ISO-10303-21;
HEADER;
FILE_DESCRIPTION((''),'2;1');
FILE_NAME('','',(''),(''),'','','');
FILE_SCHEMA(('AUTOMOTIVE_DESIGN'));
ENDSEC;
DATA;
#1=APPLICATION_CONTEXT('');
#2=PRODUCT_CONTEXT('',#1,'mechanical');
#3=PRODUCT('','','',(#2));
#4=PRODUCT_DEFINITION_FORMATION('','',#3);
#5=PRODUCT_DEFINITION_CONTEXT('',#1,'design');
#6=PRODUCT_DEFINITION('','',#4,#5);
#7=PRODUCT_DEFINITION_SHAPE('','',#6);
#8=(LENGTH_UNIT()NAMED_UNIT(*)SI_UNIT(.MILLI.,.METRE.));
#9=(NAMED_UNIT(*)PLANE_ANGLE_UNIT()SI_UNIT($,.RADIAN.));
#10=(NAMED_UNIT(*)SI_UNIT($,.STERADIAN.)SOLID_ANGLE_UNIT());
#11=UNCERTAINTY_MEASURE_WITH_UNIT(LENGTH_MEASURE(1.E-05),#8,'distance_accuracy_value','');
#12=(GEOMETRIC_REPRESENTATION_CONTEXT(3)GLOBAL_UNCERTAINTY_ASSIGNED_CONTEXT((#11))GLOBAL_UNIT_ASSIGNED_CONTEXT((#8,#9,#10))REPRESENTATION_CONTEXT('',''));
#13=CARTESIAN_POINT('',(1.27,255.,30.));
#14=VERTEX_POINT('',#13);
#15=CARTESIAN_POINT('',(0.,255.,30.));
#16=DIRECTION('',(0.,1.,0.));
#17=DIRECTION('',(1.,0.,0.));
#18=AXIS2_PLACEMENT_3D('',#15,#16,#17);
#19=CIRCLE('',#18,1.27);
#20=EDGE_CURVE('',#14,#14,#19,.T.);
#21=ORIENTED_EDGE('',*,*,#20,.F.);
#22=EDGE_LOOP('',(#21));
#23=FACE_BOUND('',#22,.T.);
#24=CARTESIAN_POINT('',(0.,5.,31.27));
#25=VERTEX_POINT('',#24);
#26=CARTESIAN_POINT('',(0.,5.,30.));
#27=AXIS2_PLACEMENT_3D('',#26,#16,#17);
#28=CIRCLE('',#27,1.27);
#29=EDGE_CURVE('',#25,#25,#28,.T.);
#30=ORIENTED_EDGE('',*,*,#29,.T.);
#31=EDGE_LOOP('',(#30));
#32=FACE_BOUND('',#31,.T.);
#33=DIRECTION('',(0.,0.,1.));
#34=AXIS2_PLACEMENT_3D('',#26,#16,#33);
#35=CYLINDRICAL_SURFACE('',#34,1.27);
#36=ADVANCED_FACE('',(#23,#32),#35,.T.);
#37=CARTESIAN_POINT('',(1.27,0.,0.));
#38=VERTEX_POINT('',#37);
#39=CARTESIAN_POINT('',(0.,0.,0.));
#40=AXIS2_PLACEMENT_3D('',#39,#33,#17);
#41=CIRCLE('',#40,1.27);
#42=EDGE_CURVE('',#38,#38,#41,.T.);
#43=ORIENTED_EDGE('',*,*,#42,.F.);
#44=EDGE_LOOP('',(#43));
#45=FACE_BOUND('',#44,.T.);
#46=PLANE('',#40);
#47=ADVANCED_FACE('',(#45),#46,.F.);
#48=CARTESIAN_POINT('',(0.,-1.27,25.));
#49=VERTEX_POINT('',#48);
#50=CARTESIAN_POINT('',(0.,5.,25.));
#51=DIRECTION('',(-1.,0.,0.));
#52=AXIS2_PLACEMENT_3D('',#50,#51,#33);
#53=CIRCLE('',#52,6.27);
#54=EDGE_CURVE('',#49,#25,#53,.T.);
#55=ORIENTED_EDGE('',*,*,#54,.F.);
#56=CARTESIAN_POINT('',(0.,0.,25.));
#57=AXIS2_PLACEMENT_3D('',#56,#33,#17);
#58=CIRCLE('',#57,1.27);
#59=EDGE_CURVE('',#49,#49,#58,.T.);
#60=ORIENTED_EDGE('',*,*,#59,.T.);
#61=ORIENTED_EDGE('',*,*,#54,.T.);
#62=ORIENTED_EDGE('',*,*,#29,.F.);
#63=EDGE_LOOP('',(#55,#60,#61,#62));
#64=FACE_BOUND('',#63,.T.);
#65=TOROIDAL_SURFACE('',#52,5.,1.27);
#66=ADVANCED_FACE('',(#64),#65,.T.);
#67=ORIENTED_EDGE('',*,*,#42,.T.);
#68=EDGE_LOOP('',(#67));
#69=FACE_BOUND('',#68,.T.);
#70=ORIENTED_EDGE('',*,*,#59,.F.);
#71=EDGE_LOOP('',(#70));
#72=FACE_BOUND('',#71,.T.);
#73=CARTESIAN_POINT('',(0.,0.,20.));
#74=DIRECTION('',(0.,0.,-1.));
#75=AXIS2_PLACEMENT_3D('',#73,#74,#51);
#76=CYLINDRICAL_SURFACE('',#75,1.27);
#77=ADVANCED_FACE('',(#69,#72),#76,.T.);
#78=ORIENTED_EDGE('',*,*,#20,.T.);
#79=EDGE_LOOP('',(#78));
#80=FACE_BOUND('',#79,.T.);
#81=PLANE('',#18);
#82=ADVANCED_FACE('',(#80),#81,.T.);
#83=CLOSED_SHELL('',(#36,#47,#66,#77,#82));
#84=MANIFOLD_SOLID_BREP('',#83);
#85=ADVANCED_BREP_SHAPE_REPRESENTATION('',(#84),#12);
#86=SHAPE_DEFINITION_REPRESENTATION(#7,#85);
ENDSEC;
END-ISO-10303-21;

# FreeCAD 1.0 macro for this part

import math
import FreeCAD as App
import Part
import Sketcher
Q = App.Units.Quantity

doc = App.newDocument("Part")
body = doc.addObject("PartDesign::Body", "Body")

# Sketch on XY plane
sketch1 = doc.addObject("Sketcher::SketchObject", "Sketch")
body.addObject(sketch1)
sketch1.AttachmentSupport = (doc.XY_Plane, [""])
sketch1.MapMode = "FlatFace"
sketch1.addGeometry(Part.Circle(App.Vector(0, 0, 0), App.Vector(0, 0, 1), 1.3), False)
sketch1.addConstraint(Sketcher.Constraint("Coincident", 0, 3, -1, 1))
sketch1.addConstraint(Sketcher.Constraint("Diameter", 0, Q("2.54 mm")))
pad1 = doc.addObject("PartDesign::Pad", "Pad")
body.addObject(pad1)
pad1.Profile = sketch1
pad1.Length = 20

# Sketch on XY plane
sketch2 = doc.addObject("Sketcher::SketchObject", "Sketch001")
body.addObject(sketch2)
sketch2.AttachmentSupport = (doc.XY_Plane, [""])
sketch2.MapMode = "FlatFace"
sketch2.AttachmentOffset = App.Placement(App.Vector(0, 0, 20), App.Rotation())
sketch2.addGeometry(Part.Circle(App.Vector(0, 0, 0), App.Vector(0, 0, 1), 1.3), False)
sketch2.addConstraint(Sketcher.Constraint("Coincident", 0, 3, -1, 1))
sketch2.addConstraint(Sketcher.Constraint("Diameter", 0, Q("2.54 mm")))

# Sketch on YZ plane
sketch3 = doc.addObject("Sketcher::SketchObject", "Sketch002")
body.addObject(sketch3)
sketch3.AttachmentSupport = (doc.YZ_Plane, [""])
sketch3.MapMode = "FlatFace"
sketch3.addGeometry(Part.LineSegment(App.Vector(0, 20, 0), App.Vector(0, 25, 0)), False)
sketch3.addGeometry(Part.ArcOfCircle(Part.Circle(App.Vector(5, 25, 0), App.Vector(0, 0, 1), 5), math.radians(90), math.radians(180)), False)
sketch3.addGeometry(Part.LineSegment(App.Vector(5, 30, 0), App.Vector(255, 30, 0)), False)
sketch3.addConstraint(Sketcher.Constraint("Tangent", 0, 2, 1, 2))
sketch3.addConstraint(Sketcher.Constraint("Tangent", 1, 1, 2, 1))
sketch3.addConstraint(Sketcher.Constraint("Vertical", 0))
sketch3.addConstraint(Sketcher.Constraint("Horizontal", 2))
sketch3.addConstraint(Sketcher.Constraint("PointOnObject", 0, 1, -2))
sketch3.addConstraint(Sketcher.Constraint("Radius", 1, Q("5 mm")))
sketch3.addConstraint(Sketcher.Constraint("DistanceX", 2, 1, 2, 2, Q("250 mm")))
sketch3.addConstraint(Sketcher.Constraint("DistanceY", 0, 1, 0, 2, Q("5 mm")))
sketch3.addConstraint(Sketcher.Constraint("DistanceY", -1, 1, 1, 3, Q("25 mm")))
doc.recompute()

additivepipe = doc.addObject("PartDesign::AdditivePipe", "AdditivePipe")
body.addObject(additivepipe)
additivepipe.Profile = sketch2
additivepipe.Spine = (sketch3, ["Edge1", "Edge2", "Edge3"])

doc.recompute()
